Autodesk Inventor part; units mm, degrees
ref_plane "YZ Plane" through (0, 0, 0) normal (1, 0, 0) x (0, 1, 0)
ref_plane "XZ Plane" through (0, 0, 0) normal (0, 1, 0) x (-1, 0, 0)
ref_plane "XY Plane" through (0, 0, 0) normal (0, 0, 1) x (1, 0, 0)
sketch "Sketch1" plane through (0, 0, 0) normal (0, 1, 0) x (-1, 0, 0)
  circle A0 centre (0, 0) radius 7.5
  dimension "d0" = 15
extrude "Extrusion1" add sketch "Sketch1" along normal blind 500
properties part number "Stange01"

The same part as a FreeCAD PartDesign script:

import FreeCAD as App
import Part
import Sketcher
from FreeCAD import Vector
Q = App.Units.Quantity

doc = App.newDocument("Part")
body = doc.addObject("PartDesign::Body", "Body")

sketch1 = body.newObject("Sketcher::SketchObject", "Sketch")
sketch1.AttachmentSupport = (doc.getObject("XZ_Plane"), [""])
sketch1.MapMode = "FlatFace"
sketch1.addGeometry(Part.Circle(Vector(0, 0, 0), Vector(0, 0, 1), 8), False)
sketch1.addConstraint([
    Sketcher.Constraint("Coincident", 0, 3, -1, 1),
    Sketcher.Constraint("Diameter", 0, Q("15 mm")),
])
pad1 = body.newObject("PartDesign::Pad", "Pad")
pad1.Profile = sketch1
pad1.Length = 500
pad1.Reversed = True

doc.recompute()
